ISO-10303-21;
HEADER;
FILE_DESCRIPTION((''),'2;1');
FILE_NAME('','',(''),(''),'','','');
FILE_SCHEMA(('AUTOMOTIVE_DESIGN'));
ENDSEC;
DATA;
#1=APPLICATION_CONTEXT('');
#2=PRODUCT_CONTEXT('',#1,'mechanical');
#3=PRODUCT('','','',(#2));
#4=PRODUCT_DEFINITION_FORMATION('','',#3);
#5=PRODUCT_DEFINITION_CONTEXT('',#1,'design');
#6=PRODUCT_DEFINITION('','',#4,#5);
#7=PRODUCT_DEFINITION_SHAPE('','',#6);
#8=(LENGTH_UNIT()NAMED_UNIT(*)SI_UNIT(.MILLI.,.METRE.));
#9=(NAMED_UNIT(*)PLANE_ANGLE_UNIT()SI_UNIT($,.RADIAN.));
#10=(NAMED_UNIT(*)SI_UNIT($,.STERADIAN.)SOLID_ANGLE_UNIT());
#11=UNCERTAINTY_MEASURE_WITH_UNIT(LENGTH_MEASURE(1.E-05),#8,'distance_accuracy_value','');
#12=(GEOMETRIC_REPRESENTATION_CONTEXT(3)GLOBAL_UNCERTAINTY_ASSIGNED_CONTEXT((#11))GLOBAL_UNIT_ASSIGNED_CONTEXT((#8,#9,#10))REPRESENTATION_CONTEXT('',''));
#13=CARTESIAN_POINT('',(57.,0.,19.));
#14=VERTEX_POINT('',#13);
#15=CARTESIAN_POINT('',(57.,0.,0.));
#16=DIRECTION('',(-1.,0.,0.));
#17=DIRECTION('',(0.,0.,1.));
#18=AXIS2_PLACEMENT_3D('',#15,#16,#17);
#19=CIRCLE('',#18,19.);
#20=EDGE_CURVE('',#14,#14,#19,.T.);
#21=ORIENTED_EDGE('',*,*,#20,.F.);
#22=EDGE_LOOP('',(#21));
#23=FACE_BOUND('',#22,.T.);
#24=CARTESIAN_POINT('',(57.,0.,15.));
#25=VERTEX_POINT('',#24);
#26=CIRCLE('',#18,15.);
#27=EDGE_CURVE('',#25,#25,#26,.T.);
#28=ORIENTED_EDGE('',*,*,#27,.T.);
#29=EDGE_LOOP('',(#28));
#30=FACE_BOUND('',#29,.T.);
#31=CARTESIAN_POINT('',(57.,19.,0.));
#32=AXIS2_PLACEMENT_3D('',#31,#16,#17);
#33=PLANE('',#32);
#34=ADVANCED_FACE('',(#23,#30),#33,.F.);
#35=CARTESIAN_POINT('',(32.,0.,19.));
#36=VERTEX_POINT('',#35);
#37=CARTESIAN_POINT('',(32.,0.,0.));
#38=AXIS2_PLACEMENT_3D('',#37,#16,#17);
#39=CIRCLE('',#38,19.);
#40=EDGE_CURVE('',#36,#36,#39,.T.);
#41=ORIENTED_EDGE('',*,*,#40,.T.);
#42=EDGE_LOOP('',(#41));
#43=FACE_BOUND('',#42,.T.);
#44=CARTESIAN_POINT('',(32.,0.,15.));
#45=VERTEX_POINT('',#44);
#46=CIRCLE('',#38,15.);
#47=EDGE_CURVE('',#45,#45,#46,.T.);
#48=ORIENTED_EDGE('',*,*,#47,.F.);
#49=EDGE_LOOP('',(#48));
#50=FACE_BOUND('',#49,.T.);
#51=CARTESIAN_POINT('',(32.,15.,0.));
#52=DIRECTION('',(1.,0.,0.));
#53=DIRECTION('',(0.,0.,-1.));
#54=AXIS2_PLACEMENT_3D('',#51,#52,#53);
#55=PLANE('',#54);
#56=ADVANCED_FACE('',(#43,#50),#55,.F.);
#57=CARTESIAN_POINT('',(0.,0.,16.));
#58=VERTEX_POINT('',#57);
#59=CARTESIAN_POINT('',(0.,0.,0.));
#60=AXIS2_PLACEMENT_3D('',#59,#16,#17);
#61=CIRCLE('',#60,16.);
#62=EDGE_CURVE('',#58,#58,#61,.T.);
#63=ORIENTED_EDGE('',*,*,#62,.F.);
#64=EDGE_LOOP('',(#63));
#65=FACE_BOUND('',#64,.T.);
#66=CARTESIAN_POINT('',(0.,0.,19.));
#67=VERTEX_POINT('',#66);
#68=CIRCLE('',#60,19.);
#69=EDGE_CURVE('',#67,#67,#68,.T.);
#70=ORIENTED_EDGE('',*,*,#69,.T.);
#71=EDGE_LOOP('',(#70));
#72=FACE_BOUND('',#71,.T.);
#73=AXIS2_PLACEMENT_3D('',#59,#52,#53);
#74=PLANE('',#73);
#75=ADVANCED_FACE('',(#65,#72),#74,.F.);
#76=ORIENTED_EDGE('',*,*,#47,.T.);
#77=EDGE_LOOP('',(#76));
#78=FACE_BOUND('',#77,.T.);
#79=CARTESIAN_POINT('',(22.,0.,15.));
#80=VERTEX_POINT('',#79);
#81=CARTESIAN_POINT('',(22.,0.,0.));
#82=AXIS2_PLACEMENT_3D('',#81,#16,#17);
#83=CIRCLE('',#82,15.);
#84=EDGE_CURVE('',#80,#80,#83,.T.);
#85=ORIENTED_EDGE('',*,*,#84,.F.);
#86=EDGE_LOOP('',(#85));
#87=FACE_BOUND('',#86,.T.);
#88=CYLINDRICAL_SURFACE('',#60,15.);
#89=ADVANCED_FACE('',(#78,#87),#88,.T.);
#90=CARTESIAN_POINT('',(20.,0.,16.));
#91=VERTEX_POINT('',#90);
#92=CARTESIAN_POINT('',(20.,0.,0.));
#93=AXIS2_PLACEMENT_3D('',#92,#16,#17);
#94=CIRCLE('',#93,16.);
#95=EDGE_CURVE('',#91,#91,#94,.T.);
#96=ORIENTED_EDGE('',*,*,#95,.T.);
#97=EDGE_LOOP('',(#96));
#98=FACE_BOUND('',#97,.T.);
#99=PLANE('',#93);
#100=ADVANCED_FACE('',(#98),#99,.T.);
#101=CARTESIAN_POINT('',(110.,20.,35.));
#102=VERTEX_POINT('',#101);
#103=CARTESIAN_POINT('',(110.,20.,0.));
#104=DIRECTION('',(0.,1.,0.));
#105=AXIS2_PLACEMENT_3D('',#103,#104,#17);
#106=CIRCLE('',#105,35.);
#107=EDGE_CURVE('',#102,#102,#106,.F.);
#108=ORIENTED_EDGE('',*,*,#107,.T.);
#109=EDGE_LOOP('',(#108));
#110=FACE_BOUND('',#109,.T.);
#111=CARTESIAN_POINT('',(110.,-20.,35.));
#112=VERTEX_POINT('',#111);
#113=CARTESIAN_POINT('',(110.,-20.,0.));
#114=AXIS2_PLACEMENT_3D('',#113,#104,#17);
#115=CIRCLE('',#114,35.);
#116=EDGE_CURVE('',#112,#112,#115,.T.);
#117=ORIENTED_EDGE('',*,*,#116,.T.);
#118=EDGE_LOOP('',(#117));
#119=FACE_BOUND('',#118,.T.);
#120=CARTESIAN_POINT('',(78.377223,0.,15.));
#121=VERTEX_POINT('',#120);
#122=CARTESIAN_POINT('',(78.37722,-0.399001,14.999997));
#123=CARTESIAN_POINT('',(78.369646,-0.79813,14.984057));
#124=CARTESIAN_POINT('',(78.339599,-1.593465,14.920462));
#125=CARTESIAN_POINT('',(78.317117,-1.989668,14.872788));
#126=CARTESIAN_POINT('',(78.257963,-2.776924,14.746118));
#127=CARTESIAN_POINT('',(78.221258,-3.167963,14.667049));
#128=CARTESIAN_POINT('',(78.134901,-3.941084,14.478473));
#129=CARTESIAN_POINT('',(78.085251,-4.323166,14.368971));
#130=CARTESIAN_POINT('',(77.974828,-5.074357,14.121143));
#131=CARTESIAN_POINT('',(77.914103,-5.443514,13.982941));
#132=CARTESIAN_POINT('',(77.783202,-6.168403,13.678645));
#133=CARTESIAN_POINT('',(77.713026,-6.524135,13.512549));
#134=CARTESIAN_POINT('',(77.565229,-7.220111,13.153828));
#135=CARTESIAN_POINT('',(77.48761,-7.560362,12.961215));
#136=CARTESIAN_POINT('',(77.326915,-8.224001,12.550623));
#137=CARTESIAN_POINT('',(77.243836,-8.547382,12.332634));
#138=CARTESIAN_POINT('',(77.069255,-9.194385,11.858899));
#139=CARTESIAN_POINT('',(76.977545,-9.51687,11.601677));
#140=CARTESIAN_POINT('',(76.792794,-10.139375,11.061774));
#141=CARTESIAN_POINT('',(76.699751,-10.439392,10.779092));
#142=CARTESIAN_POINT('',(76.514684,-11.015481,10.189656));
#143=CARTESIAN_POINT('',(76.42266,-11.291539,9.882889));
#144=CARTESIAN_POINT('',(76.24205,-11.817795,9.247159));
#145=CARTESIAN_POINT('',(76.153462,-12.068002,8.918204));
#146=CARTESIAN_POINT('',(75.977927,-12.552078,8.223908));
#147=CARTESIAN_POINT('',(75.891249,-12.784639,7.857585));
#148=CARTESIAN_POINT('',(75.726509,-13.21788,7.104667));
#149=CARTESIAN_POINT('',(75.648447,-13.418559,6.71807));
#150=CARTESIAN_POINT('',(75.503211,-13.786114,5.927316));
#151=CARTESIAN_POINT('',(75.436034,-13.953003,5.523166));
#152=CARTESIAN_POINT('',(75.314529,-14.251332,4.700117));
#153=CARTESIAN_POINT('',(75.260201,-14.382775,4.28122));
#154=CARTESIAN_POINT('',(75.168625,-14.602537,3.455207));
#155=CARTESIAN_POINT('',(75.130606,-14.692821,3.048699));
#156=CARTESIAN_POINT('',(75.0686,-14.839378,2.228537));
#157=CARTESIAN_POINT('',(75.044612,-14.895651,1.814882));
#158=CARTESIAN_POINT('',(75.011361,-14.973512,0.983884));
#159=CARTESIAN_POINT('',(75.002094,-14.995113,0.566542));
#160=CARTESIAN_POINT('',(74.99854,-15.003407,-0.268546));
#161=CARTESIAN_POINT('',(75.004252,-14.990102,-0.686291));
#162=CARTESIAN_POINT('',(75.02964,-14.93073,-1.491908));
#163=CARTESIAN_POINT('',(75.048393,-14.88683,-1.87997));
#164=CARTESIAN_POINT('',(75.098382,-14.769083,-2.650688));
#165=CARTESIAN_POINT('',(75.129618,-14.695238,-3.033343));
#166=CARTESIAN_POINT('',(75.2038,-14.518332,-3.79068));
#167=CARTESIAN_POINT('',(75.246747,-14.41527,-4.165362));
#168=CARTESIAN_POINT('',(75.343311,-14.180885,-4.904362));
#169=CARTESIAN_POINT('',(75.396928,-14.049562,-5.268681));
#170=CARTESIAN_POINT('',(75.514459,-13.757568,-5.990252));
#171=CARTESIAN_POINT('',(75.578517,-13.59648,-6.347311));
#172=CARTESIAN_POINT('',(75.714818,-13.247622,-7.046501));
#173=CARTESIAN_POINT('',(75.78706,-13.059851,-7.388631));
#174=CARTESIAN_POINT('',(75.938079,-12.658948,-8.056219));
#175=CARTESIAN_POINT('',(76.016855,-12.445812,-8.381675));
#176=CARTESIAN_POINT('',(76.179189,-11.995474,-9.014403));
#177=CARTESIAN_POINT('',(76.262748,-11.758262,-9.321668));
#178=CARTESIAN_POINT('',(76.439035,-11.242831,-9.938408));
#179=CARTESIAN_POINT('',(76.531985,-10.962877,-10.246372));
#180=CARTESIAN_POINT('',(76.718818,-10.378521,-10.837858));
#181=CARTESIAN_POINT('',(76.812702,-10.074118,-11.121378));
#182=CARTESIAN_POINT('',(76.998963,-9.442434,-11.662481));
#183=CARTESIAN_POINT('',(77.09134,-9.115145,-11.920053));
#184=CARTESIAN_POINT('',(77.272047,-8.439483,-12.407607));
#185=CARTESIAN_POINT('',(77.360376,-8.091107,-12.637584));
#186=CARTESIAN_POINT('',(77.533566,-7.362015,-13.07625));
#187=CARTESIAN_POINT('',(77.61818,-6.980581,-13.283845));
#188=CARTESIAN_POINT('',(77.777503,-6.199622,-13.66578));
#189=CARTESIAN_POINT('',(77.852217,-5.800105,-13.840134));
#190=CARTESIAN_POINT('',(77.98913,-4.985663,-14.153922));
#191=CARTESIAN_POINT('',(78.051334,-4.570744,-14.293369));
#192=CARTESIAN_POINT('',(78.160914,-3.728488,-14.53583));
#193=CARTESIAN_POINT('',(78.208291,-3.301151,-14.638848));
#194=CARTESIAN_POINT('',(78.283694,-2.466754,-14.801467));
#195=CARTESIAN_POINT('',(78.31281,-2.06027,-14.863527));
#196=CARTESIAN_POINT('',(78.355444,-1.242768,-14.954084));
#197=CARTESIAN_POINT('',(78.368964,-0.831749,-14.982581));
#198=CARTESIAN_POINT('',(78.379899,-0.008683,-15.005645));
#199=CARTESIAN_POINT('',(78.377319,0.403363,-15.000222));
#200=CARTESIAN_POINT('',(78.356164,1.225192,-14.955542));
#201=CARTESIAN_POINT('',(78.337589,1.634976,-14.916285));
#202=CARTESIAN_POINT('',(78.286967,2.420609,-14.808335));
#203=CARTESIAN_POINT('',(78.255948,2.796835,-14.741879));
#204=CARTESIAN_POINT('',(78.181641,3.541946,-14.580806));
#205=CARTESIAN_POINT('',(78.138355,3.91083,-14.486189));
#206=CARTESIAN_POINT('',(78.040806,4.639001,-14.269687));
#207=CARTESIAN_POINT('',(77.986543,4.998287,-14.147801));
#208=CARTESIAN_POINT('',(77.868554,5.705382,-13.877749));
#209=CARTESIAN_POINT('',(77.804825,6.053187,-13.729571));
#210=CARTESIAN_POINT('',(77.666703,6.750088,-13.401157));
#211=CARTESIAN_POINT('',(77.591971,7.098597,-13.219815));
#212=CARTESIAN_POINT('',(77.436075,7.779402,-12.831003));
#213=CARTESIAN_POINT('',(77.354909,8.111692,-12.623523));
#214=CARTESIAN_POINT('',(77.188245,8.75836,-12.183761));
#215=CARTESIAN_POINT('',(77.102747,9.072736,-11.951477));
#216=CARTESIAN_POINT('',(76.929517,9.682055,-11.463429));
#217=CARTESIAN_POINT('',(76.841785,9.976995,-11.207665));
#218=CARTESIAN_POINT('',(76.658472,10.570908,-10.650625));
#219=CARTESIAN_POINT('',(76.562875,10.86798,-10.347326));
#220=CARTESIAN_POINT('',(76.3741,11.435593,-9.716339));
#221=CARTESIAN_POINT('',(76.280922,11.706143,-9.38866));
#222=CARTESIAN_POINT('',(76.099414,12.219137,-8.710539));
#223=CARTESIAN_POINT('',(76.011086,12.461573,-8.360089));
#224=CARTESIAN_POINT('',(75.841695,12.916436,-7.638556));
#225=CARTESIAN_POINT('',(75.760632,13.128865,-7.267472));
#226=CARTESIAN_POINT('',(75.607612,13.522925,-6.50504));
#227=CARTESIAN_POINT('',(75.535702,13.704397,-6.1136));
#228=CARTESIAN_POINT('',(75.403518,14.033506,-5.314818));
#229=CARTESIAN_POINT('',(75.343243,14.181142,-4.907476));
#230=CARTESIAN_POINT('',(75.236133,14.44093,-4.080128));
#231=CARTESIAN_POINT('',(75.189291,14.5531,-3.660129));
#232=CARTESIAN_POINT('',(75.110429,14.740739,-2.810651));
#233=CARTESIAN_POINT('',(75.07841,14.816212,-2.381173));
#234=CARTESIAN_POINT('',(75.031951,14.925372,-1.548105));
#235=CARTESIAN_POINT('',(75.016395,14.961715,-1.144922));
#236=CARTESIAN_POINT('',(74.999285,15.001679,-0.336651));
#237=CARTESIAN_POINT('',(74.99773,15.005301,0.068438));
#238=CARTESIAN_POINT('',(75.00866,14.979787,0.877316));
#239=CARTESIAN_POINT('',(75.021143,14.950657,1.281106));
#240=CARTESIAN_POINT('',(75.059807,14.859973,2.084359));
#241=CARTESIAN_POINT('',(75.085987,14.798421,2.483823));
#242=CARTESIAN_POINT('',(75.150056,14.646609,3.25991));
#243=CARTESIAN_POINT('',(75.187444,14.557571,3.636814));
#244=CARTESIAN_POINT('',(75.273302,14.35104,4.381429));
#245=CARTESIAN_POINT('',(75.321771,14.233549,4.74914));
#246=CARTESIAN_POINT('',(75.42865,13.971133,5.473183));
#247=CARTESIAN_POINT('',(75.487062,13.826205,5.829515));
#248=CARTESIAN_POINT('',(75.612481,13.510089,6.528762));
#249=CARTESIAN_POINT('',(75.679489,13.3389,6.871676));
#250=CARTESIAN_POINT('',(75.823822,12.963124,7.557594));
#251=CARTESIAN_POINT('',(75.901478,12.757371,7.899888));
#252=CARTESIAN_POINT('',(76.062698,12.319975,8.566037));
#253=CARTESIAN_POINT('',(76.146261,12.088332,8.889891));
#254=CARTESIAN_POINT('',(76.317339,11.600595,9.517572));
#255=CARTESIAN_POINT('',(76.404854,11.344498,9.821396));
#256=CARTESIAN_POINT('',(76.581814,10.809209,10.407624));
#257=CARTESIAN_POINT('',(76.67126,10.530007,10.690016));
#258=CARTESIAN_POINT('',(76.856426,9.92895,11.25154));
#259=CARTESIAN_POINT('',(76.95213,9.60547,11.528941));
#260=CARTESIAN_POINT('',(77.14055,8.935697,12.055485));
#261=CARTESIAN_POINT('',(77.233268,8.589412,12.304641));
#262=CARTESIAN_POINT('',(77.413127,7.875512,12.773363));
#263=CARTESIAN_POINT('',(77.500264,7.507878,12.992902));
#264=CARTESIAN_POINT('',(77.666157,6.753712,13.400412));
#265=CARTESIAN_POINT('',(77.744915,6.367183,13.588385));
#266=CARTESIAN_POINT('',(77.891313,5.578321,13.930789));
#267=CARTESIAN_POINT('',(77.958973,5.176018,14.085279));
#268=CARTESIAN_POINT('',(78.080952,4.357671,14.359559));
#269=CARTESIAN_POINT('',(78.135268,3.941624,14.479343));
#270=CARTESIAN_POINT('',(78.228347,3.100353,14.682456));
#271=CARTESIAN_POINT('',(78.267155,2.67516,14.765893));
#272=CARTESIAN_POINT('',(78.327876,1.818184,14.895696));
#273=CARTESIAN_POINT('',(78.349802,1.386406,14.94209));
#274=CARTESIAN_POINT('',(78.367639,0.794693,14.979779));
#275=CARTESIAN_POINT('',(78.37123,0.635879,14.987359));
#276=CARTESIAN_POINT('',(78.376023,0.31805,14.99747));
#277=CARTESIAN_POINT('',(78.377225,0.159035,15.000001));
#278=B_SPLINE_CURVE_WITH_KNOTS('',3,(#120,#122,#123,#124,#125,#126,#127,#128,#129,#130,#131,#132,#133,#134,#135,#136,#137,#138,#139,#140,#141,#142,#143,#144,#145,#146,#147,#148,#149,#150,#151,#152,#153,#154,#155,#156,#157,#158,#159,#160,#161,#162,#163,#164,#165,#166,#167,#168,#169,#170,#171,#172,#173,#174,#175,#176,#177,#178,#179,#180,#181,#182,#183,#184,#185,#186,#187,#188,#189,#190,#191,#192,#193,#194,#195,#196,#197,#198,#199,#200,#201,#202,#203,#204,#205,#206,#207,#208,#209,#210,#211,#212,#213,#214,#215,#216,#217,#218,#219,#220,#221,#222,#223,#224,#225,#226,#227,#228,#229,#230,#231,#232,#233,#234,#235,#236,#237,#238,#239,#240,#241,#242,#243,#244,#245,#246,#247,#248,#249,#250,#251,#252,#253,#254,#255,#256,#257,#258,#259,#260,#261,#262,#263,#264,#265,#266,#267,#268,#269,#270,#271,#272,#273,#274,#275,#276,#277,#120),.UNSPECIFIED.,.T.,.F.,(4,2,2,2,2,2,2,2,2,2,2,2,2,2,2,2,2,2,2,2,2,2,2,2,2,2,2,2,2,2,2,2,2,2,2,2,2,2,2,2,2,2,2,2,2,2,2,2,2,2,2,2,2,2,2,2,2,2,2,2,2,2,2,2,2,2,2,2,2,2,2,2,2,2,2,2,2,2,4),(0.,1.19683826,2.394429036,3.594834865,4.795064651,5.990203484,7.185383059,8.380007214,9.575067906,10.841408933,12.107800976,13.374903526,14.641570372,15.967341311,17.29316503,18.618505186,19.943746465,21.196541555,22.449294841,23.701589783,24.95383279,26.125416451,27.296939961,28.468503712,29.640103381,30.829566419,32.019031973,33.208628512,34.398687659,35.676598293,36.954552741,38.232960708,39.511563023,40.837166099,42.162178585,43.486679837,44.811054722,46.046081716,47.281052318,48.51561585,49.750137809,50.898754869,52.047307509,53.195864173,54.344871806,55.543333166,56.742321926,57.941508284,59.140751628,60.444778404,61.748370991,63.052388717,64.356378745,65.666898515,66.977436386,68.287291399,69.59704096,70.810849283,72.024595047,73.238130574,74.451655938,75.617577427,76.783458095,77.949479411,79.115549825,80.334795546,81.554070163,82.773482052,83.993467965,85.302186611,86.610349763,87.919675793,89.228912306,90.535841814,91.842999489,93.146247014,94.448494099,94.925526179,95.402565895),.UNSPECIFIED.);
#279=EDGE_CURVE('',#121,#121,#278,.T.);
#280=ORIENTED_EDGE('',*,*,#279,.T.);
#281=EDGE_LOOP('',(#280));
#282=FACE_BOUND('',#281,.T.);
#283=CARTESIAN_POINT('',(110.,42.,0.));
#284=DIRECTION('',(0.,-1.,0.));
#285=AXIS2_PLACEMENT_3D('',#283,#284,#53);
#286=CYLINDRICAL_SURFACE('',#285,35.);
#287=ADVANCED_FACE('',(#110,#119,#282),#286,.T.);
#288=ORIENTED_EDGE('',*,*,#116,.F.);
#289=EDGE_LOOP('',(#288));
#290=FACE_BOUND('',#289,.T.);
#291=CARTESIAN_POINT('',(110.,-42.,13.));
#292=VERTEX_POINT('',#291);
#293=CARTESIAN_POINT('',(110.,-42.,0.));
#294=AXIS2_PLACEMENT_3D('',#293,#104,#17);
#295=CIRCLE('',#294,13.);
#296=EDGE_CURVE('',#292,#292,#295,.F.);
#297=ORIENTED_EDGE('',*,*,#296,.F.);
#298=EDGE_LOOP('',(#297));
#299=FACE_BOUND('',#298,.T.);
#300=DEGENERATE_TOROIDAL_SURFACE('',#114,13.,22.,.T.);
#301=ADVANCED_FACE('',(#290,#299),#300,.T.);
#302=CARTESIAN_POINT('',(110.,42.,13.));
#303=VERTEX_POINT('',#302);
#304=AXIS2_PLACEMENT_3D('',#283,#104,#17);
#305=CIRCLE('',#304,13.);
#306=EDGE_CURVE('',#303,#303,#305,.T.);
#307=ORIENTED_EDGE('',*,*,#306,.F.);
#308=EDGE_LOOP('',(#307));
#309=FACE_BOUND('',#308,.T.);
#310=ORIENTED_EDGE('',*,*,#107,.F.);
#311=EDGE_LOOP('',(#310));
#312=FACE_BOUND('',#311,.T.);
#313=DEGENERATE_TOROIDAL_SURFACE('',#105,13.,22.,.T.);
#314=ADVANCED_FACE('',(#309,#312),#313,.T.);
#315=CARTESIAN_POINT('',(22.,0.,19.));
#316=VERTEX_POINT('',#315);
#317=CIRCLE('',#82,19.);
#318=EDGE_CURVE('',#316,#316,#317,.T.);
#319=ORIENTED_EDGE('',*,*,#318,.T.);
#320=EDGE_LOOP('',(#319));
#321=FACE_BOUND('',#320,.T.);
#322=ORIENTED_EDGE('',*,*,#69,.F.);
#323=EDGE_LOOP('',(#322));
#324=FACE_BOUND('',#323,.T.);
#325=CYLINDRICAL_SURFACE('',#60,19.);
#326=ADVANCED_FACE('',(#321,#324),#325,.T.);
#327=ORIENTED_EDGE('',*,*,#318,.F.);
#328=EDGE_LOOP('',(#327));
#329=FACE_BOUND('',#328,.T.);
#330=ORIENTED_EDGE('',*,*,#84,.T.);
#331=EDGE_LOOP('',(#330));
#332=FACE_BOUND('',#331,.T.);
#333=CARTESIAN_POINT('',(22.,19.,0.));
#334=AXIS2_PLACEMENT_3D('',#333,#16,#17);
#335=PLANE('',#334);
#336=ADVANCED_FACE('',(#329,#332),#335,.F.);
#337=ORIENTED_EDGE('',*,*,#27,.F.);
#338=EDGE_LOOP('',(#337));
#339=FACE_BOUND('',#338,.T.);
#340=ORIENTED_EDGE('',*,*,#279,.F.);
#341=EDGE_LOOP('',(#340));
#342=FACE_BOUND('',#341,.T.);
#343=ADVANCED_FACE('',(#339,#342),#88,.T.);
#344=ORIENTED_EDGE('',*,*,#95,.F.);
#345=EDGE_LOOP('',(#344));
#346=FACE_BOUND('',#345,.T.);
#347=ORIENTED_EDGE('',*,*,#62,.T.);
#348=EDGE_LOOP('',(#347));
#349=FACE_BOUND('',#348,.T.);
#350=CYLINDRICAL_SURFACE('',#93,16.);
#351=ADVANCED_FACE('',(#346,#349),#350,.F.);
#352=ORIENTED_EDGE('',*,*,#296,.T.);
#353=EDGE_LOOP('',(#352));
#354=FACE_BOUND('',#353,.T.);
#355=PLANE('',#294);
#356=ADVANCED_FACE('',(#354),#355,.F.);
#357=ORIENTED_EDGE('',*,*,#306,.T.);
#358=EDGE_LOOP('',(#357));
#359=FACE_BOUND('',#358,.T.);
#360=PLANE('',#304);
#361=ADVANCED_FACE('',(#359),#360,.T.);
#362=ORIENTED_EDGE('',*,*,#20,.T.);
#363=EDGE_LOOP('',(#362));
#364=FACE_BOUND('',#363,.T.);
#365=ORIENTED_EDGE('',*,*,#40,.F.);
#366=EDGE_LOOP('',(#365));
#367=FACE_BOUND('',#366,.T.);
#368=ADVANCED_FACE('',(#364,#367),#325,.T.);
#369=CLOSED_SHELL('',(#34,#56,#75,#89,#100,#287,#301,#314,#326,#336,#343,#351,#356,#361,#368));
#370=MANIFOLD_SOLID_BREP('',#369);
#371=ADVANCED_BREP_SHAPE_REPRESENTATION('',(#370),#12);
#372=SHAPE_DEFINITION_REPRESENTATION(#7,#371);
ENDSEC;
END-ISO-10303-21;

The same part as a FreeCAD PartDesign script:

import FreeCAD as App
import Part
import Sketcher
from FreeCAD import Vector


def edges_at(feature, points):
    """Names of the edges that pass closest to the given points."""
    edges = feature.Shape.Edges
    near = lambda p: min(range(len(edges)), key=lambda i: edges[i].distToShape(Part.Vertex(*p))[0])
    return sorted({f"Edge{near(p) + 1}" for p in points})

doc = App.newDocument("Part")
body = doc.addObject("PartDesign::Body", "Body")

sketch1 = body.newObject("Sketcher::SketchObject", "Sketch")
sketch1.AttachmentSupport = (doc.getObject("XY_Plane"), [""])
sketch1.MapMode = "FlatFace"
sketch1.addGeometry([
    Part.LineSegment(Vector(0, 19, 0), Vector(0, 0, 0)),
    Part.LineSegment(Vector(0, 0, 0), Vector(112, 0, 0)),
    Part.LineSegment(Vector(112, 0, 0), Vector(112, 15, 0)),
    Part.LineSegment(Vector(112, 15, 0), Vector(57, 15, 0)),
    Part.LineSegment(Vector(57, 15, 0), Vector(57, 19, 0)),
    Part.LineSegment(Vector(57, 19, 0), Vector(32, 19, 0)),
    Part.LineSegment(Vector(32, 19, 0), Vector(32, 15, 0)),
    Part.LineSegment(Vector(32, 15, 0), Vector(22, 15, 0)),
    Part.LineSegment(Vector(22, 15, 0), Vector(22, 19, 0)),
    Part.LineSegment(Vector(22, 19, 0), Vector(0, 19, 0)),
], False)
sketch1.addConstraint([
    Sketcher.Constraint("Coincident", 0, 2, 1, 1),
    Sketcher.Constraint("Coincident", 1, 2, 2, 1),
    Sketcher.Constraint("Coincident", 2, 2, 3, 1),
    Sketcher.Constraint("Coincident", 3, 2, 4, 1),
    Sketcher.Constraint("Coincident", 4, 2, 5, 1),
    Sketcher.Constraint("Coincident", 5, 2, 6, 1),
    Sketcher.Constraint("Coincident", 6, 2, 7, 1),
    Sketcher.Constraint("Coincident", 7, 2, 8, 1),
    Sketcher.Constraint("Coincident", 8, 2, 9, 1),
    Sketcher.Constraint("Coincident", 9, 2, 0, 1),
    Sketcher.Constraint("Vertical", 0),
    Sketcher.Constraint("Horizontal", 1),
    Sketcher.Constraint("Vertical", 2),
    Sketcher.Constraint("Horizontal", 3),
    Sketcher.Constraint("Vertical", 4),
    Sketcher.Constraint("Horizontal", 5),
    Sketcher.Constraint("Vertical", 6),
    Sketcher.Constraint("Horizontal", 7),
    Sketcher.Constraint("Vertical", 8),
    Sketcher.Constraint("Horizontal", 9),
    Sketcher.Constraint("Coincident", 0, 2, -1, 1),
    Sketcher.Constraint("Horizontal", 3, 2, 6, 2),
    Sketcher.Constraint("Horizontal", 5, 2, 8, 2),
    Sketcher.Constraint("DistanceX", 1, 1, 1, 2, 112.0),
    Sketcher.Constraint("DistanceX", 3, 2, 3, 1, 55.0),
    Sketcher.Constraint("DistanceX", 5, 2, 5, 1, 25.0),
    Sketcher.Constraint("DistanceX", 7, 2, 7, 1, 10.0),
    Sketcher.Constraint("DistanceY", 0, 2, 0, 1, 19.0),
    Sketcher.Constraint("DistanceY", 2, 1, 2, 2, 15.0),
])
revolution = body.newObject("PartDesign::Revolution", "Revolution")
revolution.Profile = sketch1
revolution.ReferenceAxis = (sketch1, ["H_Axis"])
revolution.Angle = 360

sketch2 = body.newObject("Sketcher::SketchObject", "Sketch001")
sketch2.AttachmentSupport = (doc.getObject("XZ_Plane"), [""])
sketch2.MapMode = "FlatFace"
sketch2.addGeometry(Part.Circle(Vector(110, 0, 0), Vector(0, 0, 1), 35), False)
sketch2.addConstraint([
    Sketcher.Constraint("PointOnObject", 0, 3, -1),
    Sketcher.Constraint("Diameter", 0, 70.0),
    Sketcher.Constraint("DistanceX", -1, 1, 0, 3, 110.0),
])
pad1 = body.newObject("PartDesign::Pad", "Pad")
pad1.Profile = sketch2
pad1.Length = 84
pad1.Midplane = True
doc.recompute()

fillet = body.newObject("PartDesign::Fillet", "Fillet")
fillet.Base = (pad1, edges_at(pad1, [(110, -42, -35), (110, 42, -35)]))
fillet.Radius = 22

sketch3 = body.newObject("Sketcher::SketchObject", "Sketch002")
sketch3.AttachmentSupport = (doc.getObject("YZ_Plane"), [""])
sketch3.MapMode = "FlatFace"
sketch3.addGeometry(Part.Circle(Vector(0, 0, 0), Vector(0, 0, 1), 16), False)
sketch3.addConstraint([
    Sketcher.Constraint("Coincident", 0, 3, -1, 1),
    Sketcher.Constraint("Diameter", 0, 32.0),
])
pocket1 = body.newObject("PartDesign::Pocket", "Pocket")
pocket1.Profile = sketch3
pocket1.Length = 20
pocket1.Reversed = True

doc.recompute()
